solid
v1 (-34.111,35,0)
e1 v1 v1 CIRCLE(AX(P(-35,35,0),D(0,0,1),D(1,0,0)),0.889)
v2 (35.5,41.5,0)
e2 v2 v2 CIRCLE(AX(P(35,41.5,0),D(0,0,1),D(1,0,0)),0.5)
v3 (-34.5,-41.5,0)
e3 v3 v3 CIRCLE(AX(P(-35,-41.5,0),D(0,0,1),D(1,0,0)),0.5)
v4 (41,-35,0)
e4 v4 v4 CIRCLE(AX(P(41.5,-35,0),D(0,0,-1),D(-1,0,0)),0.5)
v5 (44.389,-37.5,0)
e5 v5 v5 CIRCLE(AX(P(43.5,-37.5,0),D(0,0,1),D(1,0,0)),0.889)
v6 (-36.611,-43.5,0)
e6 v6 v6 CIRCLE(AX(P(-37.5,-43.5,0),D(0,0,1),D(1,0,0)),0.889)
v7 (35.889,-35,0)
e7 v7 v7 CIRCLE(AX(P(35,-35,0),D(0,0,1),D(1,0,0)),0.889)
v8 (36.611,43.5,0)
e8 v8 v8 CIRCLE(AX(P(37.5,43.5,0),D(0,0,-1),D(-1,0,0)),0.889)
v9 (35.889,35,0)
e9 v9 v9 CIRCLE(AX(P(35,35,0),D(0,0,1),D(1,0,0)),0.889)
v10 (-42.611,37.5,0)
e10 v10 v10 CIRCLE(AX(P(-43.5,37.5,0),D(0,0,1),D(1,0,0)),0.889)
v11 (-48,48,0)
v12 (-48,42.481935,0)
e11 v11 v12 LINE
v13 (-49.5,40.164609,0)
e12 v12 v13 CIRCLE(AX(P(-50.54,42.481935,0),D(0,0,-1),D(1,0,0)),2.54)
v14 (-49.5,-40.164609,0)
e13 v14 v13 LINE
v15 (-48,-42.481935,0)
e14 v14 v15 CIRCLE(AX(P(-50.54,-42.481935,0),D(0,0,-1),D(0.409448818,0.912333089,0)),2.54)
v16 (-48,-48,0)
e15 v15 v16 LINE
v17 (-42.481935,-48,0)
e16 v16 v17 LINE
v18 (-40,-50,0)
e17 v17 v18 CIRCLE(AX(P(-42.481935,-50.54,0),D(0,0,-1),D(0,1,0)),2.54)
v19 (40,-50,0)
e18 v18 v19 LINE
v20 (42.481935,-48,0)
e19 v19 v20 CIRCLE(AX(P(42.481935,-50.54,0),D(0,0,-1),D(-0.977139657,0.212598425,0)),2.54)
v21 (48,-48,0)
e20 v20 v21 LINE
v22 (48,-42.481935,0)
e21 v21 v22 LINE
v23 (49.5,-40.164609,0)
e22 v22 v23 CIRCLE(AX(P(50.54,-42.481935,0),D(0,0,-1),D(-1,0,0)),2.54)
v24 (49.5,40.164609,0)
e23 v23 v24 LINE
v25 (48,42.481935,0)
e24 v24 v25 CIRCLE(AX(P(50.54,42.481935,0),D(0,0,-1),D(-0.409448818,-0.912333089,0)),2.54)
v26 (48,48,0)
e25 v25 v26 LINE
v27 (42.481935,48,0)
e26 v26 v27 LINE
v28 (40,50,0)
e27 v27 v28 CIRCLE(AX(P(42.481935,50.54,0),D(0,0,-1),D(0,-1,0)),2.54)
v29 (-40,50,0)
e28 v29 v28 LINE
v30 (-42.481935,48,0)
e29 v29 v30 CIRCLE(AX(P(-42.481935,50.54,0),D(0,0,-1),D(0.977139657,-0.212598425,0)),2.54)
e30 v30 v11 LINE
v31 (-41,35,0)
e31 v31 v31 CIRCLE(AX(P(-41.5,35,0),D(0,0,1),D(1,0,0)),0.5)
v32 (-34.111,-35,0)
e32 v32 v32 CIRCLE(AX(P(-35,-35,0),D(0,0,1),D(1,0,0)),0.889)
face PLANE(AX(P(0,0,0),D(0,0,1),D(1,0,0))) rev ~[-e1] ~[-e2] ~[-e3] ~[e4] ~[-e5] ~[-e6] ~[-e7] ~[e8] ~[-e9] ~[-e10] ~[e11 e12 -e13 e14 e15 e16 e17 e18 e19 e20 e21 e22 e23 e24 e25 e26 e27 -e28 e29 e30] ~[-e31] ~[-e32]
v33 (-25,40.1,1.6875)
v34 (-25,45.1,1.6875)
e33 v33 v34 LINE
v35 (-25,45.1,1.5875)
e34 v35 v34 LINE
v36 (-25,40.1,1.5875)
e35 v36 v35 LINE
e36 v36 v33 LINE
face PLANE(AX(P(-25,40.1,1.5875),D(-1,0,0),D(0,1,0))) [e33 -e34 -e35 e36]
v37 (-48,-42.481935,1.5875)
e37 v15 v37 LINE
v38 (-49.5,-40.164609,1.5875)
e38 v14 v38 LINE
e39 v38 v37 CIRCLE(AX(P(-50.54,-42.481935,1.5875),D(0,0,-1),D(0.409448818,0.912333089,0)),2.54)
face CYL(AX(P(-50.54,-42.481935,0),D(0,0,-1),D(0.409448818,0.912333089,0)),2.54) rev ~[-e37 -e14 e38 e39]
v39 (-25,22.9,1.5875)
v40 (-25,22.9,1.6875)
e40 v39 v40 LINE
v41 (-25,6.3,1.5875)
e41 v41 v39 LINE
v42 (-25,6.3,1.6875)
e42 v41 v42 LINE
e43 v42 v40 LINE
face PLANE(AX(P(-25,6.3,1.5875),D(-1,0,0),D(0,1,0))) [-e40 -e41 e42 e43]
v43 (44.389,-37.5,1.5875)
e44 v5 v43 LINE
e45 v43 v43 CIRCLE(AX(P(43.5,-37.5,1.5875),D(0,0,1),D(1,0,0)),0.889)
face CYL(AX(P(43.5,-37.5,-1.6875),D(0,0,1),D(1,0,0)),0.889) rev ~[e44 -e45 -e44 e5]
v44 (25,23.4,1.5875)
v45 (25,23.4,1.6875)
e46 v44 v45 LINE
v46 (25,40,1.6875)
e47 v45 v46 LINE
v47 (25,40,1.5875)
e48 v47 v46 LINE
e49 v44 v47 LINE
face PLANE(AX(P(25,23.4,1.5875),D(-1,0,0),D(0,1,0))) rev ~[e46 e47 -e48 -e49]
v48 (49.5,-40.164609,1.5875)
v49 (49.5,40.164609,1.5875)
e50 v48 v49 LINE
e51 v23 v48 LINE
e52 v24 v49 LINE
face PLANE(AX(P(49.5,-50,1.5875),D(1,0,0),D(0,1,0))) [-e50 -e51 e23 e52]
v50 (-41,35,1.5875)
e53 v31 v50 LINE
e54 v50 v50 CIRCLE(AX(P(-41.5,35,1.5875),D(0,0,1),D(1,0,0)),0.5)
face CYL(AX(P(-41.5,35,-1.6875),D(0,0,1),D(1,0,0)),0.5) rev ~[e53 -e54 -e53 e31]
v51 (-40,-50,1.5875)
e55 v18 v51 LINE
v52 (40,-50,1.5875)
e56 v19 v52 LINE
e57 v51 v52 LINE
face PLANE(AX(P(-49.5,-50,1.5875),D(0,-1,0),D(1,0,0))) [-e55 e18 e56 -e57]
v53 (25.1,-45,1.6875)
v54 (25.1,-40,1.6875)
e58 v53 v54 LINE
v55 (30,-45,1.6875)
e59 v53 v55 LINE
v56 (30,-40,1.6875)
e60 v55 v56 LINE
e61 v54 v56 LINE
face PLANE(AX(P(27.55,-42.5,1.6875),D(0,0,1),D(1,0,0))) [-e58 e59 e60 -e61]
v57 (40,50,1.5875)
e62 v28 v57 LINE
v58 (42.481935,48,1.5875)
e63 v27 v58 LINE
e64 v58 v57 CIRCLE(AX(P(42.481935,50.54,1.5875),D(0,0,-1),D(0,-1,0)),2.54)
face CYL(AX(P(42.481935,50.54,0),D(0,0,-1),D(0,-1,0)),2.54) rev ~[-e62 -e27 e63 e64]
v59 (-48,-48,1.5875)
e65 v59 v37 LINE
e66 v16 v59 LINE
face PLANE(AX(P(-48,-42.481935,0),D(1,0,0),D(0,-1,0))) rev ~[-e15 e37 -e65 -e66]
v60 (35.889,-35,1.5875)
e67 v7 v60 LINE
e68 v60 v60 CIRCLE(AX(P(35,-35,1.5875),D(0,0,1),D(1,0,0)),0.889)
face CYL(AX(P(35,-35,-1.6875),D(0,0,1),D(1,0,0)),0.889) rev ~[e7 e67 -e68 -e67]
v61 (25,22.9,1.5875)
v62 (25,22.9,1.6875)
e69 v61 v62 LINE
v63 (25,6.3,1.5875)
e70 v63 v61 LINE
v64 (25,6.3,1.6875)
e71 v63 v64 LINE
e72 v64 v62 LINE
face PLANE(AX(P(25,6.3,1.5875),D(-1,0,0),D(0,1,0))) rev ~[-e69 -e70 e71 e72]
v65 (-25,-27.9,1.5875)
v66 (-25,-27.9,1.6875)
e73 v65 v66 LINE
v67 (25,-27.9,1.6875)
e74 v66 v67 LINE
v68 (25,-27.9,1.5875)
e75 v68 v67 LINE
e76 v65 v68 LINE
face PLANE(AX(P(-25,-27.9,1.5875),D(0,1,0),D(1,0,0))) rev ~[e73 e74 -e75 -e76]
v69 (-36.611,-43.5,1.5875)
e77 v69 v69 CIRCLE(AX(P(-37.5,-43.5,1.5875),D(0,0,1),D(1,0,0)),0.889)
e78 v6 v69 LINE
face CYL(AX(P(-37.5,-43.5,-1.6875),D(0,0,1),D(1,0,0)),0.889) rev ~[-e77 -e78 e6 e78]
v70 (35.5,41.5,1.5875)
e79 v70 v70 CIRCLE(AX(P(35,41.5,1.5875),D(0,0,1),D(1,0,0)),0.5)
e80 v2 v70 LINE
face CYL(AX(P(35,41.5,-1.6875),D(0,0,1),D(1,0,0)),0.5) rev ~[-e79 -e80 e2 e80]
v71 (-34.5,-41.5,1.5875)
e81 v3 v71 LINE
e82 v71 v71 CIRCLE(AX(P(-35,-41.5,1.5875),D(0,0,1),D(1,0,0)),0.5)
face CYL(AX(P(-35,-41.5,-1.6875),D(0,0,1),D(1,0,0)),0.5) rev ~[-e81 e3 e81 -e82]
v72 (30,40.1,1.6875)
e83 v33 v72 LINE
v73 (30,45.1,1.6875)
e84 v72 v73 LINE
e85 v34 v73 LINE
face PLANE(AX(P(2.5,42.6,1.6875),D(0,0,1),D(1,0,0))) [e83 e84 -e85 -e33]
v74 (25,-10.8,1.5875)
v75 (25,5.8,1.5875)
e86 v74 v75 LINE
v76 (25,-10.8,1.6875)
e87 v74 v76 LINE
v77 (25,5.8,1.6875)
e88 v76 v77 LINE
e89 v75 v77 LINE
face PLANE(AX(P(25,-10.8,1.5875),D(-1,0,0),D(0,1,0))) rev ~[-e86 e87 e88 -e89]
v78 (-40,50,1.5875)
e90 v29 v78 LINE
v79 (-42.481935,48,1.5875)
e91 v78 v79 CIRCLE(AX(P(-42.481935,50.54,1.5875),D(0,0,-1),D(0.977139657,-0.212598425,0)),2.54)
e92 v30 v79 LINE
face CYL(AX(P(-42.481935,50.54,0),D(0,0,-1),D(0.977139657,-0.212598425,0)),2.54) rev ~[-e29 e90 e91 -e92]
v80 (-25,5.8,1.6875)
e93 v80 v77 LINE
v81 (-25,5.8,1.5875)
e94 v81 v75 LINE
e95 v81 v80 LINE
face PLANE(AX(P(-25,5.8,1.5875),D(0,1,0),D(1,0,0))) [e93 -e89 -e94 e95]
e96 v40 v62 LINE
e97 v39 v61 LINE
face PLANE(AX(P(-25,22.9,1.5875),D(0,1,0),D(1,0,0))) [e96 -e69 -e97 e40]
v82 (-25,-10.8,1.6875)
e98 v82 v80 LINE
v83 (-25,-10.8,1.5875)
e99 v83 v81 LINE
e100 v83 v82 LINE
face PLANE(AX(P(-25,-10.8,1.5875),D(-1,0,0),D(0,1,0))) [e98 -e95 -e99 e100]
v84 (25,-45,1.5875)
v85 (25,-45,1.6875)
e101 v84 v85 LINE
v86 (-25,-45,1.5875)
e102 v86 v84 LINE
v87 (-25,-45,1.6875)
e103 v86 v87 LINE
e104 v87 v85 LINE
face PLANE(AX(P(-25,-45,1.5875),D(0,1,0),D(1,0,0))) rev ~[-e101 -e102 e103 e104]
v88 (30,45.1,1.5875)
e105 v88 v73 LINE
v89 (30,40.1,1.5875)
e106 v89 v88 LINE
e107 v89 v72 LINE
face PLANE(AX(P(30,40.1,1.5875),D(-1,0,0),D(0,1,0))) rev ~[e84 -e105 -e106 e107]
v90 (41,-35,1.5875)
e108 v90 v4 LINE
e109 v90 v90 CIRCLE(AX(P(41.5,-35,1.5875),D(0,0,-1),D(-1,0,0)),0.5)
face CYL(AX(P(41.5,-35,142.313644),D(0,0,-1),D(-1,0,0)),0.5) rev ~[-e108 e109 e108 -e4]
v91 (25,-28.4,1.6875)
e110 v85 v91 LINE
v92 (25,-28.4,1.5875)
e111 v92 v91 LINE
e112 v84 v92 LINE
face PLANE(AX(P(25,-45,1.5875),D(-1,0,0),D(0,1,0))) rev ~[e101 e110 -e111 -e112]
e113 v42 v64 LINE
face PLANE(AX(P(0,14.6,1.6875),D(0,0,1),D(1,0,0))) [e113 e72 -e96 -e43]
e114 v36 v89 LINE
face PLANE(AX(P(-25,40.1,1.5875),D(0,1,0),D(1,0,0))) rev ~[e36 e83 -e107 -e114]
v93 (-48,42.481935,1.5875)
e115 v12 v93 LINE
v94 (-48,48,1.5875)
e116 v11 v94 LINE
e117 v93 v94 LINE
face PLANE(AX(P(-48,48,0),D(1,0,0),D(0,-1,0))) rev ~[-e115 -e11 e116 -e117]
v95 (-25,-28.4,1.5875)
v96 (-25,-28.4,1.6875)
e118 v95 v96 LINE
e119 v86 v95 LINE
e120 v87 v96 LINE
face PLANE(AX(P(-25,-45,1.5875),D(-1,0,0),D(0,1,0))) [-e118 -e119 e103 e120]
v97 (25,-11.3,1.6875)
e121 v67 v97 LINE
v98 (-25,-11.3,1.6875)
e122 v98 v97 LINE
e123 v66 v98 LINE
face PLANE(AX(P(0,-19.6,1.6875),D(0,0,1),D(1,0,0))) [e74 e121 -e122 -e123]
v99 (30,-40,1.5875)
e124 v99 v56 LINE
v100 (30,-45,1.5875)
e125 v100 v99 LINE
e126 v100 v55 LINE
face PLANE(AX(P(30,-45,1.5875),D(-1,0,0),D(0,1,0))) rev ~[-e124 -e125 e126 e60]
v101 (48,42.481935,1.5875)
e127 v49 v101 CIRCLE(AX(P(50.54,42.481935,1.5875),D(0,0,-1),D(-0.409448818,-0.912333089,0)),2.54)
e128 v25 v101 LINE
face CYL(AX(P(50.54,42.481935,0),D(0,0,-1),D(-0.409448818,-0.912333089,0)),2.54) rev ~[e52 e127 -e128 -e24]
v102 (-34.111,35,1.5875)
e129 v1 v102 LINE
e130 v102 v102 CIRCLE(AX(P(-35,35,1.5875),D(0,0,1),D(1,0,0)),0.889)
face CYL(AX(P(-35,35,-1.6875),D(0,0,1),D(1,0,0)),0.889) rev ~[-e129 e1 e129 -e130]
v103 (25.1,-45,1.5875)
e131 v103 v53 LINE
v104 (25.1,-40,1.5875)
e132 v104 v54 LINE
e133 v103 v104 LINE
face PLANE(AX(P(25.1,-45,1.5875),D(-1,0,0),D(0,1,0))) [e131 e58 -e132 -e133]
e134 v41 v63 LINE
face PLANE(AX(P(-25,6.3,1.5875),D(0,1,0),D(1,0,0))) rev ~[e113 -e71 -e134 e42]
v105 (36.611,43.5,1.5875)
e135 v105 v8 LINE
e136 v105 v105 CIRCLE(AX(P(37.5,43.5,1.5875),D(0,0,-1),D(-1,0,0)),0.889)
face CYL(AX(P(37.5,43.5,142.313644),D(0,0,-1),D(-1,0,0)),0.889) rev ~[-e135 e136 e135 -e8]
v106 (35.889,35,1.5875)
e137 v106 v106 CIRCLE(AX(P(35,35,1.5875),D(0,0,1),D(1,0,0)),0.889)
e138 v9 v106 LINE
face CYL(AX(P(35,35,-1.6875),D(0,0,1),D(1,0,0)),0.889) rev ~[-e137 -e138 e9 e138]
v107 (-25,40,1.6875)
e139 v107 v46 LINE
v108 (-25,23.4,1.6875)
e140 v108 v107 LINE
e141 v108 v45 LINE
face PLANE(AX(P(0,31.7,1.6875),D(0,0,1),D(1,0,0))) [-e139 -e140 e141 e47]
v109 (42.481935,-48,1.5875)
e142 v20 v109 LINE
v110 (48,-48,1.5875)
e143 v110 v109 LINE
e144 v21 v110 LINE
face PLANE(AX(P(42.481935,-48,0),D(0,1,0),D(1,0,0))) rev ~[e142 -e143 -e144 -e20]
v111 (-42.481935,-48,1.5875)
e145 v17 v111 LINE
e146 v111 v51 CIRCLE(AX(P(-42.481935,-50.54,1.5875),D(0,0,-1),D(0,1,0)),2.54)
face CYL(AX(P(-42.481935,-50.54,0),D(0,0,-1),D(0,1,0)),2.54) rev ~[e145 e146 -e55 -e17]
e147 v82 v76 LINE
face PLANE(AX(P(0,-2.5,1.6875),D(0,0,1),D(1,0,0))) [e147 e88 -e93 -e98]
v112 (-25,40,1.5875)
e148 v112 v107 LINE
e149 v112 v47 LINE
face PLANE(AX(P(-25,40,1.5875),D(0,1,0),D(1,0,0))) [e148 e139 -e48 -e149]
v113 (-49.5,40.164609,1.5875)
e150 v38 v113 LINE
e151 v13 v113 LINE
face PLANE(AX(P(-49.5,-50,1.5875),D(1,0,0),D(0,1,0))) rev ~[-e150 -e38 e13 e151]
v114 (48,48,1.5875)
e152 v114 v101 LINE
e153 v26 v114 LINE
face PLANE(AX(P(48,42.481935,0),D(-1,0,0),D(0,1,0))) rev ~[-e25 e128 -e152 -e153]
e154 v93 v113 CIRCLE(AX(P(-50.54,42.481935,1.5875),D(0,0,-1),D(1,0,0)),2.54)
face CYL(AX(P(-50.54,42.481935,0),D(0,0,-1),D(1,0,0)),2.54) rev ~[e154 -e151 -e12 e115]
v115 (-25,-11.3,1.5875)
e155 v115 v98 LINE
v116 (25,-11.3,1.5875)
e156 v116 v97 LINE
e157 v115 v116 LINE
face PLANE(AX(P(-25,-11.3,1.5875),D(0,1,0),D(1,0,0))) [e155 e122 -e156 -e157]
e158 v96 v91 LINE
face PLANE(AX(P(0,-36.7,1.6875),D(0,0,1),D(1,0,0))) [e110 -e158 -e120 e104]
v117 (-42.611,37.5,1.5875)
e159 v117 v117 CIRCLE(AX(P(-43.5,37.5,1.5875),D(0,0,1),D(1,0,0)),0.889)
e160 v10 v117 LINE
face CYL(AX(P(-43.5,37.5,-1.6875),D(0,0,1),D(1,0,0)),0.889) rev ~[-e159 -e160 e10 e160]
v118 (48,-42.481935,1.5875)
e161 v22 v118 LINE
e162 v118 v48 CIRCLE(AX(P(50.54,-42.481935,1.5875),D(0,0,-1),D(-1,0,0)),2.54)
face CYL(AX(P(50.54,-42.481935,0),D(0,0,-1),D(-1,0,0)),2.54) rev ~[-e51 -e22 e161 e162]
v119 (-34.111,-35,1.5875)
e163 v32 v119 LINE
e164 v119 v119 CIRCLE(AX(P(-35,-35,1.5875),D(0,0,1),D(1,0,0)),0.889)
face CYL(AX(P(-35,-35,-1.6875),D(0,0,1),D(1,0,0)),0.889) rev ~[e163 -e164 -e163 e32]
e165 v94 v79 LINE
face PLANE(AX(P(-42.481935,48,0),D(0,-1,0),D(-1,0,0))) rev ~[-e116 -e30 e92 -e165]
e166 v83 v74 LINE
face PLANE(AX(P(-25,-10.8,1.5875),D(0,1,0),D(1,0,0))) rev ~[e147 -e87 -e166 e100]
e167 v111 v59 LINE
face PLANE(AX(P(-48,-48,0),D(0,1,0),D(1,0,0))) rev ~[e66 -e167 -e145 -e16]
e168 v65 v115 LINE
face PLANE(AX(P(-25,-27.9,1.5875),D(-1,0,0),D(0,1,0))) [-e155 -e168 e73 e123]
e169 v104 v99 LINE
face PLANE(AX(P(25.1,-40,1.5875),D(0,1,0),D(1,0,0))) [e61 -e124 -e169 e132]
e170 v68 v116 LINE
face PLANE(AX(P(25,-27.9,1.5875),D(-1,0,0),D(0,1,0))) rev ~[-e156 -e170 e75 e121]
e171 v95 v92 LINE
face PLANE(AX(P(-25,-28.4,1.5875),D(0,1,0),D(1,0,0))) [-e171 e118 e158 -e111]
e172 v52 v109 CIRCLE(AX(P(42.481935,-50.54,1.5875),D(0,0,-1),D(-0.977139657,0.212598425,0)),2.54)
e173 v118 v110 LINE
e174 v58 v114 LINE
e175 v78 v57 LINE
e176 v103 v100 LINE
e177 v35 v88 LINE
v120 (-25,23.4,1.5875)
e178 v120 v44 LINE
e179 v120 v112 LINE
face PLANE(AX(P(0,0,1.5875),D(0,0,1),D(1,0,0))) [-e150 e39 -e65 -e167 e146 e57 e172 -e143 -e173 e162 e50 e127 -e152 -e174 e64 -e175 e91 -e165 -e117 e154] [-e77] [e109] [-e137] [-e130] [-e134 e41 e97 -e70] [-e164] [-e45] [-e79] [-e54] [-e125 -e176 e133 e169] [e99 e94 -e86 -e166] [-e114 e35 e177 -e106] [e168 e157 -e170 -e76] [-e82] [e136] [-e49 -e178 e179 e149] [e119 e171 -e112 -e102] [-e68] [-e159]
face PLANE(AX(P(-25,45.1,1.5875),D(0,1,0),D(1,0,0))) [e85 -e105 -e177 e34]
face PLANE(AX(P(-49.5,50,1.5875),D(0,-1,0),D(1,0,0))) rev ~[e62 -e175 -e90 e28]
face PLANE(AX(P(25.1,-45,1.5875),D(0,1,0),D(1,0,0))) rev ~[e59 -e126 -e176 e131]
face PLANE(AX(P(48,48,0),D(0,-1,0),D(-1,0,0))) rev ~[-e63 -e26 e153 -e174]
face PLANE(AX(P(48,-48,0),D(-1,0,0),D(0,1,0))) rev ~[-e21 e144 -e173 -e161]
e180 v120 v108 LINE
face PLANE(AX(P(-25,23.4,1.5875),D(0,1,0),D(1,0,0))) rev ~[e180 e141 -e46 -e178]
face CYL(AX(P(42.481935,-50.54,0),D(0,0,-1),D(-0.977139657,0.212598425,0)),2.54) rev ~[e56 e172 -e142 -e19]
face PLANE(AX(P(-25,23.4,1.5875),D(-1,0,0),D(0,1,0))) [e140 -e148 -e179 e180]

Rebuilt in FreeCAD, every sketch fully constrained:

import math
import FreeCAD as App
import Part
import Sketcher

V = App.Vector
Q = App.Units.Quantity


def add_polygon(sketch, points):
    """Adds a closed chain of lines whose ends are joined by coincident constraints."""
    first, n = sketch.GeometryCount, len(points)
    for a, b in zip(points, points[1:] + points[:1]):
        sketch.addGeometry(Part.LineSegment(App.Vector(*a, 0), App.Vector(*b, 0)), False)
    for i in range(n):
        sketch.addConstraint(Sketcher.Constraint("Coincident", first + i, 2, first + (i + 1) % n, 1))

doc = App.newDocument("Part")
body = doc.addObject("PartDesign::Body", "Body")

# Sketch on XY plane
sketch1 = body.newObject("Sketcher::SketchObject", "Sketch")
sketch1.AttachmentSupport = (doc.getObject("XY_Plane"), [""])
sketch1.MapMode = "FlatFace"
sketch1.AttachmentOffset = App.Placement(V(0, 0, 1.5875), App.Rotation())
add_polygon(sketch1, [(-50, 50), (-50, -50), (50, -50), (50, 50)])  # lines 0-3
sketch1.addConstraint([
    Sketcher.Constraint("Vertical", 0),
    Sketcher.Constraint("Horizontal", 1),
    Sketcher.Constraint("Vertical", 2),
    Sketcher.Constraint("Horizontal", 3),
    Sketcher.Constraint("Symmetric", 0, 2, 2, 2, -1, 1),
    Sketcher.Constraint("DistanceX", 1, 1, 1, 2, Q("99 mm")),
    Sketcher.Constraint("DistanceY", 0, 2, 0, 1, Q("100 mm")),
])
pad1 = body.newObject("PartDesign::Pad", "Pad")
pad1.Profile = sketch1
pad1.Length = 1.5875
pad1.Reversed = True

# Sketch on XY plane
sketch2 = body.newObject("Sketcher::SketchObject", "Sketch001")
sketch2.AttachmentSupport = (doc.getObject("XY_Plane"), [""])
sketch2.MapMode = "FlatFace"
sketch2.addGeometry([
    Part.LineSegment(V(-48, -42.5, 0), V(-48, -50, 0)),
    Part.LineSegment(V(-48, -50, 0), V(-49.5, -50, 0)),
    Part.LineSegment(V(-49.5, -50, 0), V(-49.5, -40.2, 0)),
    Part.ArcOfCircle(Part.Circle(V(-50.5, -42.5, 0), V(0, 0, 1), 2.5), math.radians(0), math.radians(66)),
], False)
sketch2.addConstraint([
    Sketcher.Constraint("Coincident", 0, 2, 1, 1),
    Sketcher.Constraint("Coincident", 1, 2, 2, 1),
    Sketcher.Constraint("Coincident", 2, 2, 3, 2),
    Sketcher.Constraint("Tangent", 3, 1, 0, 1),
    Sketcher.Constraint("Vertical", 0),
    Sketcher.Constraint("Horizontal", 1),
    Sketcher.Constraint("Vertical", 2),
    Sketcher.Constraint("Radius", 3, Q("2.54 mm")),
    Sketcher.Constraint("DistanceX", 1, 2, 1, 1, Q("1.5 mm")),
    Sketcher.Constraint("DistanceX", 0, 2, -1, 1, Q("48 mm")),
    Sketcher.Constraint("DistanceY", 0, 2, -1, 1, Q("50 mm")),
    Sketcher.Constraint("DistanceY", 2, 1, 2, 2, Q("9.835391 mm")),
])
pocket1 = body.newObject("PartDesign::Pocket", "Pocket")
pocket1.Profile = sketch2
pocket1.Type = "ThroughAll"
pocket1.Reversed = True

# Sketch on XY plane
sketch3 = body.newObject("Sketcher::SketchObject", "Sketch002")
sketch3.AttachmentSupport = (doc.getObject("XY_Plane"), [""])
sketch3.MapMode = "FlatFace"
sketch3.addGeometry([
    Part.LineSegment(V(-48, -48, 0), V(-42.5, -48, 0)),
    Part.ArcOfCircle(Part.Circle(V(-42.5, -50.5, 0), V(0, 0, 1), 2.5), math.radians(12), math.radians(90)),
    Part.LineSegment(V(-40, -50, 0), V(-48, -50, 0)),
    Part.LineSegment(V(-48, -50, 0), V(-48, -48, 0)),
], False)
sketch3.addConstraint([
    Sketcher.Constraint("Tangent", 0, 2, 1, 2),
    Sketcher.Constraint("Coincident", 1, 1, 2, 1),
    Sketcher.Constraint("Coincident", 2, 2, 3, 1),
    Sketcher.Constraint("Coincident", 3, 2, 0, 1),
    Sketcher.Constraint("Horizontal", 0),
    Sketcher.Constraint("Horizontal", 2),
    Sketcher.Constraint("Vertical", 3),
    Sketcher.Constraint("DistanceX", 2, 2, 2, 1, Q("8 mm")),
    Sketcher.Constraint("DistanceY", 3, 1, 3, 2, Q("2 mm")),
    Sketcher.Constraint("Radius", 1, Q("2.54 mm")),
    Sketcher.Constraint("DistanceY", 0, 2, -1, 1, Q("48 mm")),
    Sketcher.Constraint("DistanceX", 1, 1, -1, 1, Q("40 mm")),
])
pocket2 = body.newObject("PartDesign::Pocket", "Pocket001")
pocket2.Profile = sketch3
pocket2.Type = "ThroughAll"
pocket2.Reversed = True

# Sketch on XY plane
sketch4 = body.newObject("Sketcher::SketchObject", "Sketch003")
sketch4.AttachmentSupport = (doc.getObject("XY_Plane"), [""])
sketch4.MapMode = "FlatFace"
sketch4.addGeometry([
    Part.LineSegment(V(42.5, -48, 0), V(49.5, -48, 0)),
    Part.LineSegment(V(49.5, -48, 0), V(49.5, -50, 0)),
    Part.LineSegment(V(49.5, -50, 0), V(40, -50, 0)),
    Part.ArcOfCircle(Part.Circle(V(42.5, -50.5, 0), V(0, 0, 1), 2.5), math.radians(90), math.radians(168)),
], False)
sketch4.addConstraint([
    Sketcher.Constraint("Coincident", 0, 2, 1, 1),
    Sketcher.Constraint("Coincident", 1, 2, 2, 1),
    Sketcher.Constraint("Coincident", 2, 2, 3, 2),
    Sketcher.Constraint("Tangent", 3, 1, 0, 1),
    Sketcher.Constraint("Horizontal", 0),
    Sketcher.Constraint("Vertical", 1),
    Sketcher.Constraint("Horizontal", 2),
    Sketcher.Constraint("DistanceY", 1, 2, 1, 1, Q("2 mm")),
    Sketcher.Constraint("Radius", 3, Q("2.54 mm")),
    Sketcher.Constraint("DistanceX", 2, 2, 2, 1, Q("9.5 mm")),
    Sketcher.Constraint("DistanceY", 0, 2, -1, 1, Q("48 mm")),
    Sketcher.Constraint("DistanceX", -1, 1, 2, 2, Q("40 mm")),
])
pocket3 = body.newObject("PartDesign::Pocket", "Pocket002")
pocket3.Profile = sketch4
pocket3.Type = "ThroughAll"
pocket3.Reversed = True

# Sketch on XY plane
sketch5 = body.newObject("Sketcher::SketchObject", "Sketch004")
sketch5.AttachmentSupport = (doc.getObject("XY_Plane"), [""])
sketch5.MapMode = "FlatFace"
sketch5.addGeometry([
    Part.LineSegment(V(48, -48, 0), V(48, -42.5, 0)),
    Part.ArcOfCircle(Part.Circle(V(50.5, -42.5, 0), V(0, 0, 1), 2.5), math.radians(114), math.radians(180)),
    Part.LineSegment(V(49.5, -40.2, 0), V(49.5, -48, 0)),
    Part.LineSegment(V(49.5, -48, 0), V(48, -48, 0)),
], False)
sketch5.addConstraint([
    Sketcher.Constraint("Tangent", 0, 2, 1, 2),
    Sketcher.Constraint("Coincident", 1, 1, 2, 1),
    Sketcher.Constraint("Coincident", 2, 2, 3, 1),
    Sketcher.Constraint("Coincident", 3, 2, 0, 1),
    Sketcher.Constraint("Vertical", 0),
    Sketcher.Constraint("Vertical", 2),
    Sketcher.Constraint("Horizontal", 3),
    Sketcher.Constraint("Radius", 1, Q("2.54 mm")),
    Sketcher.Constraint("DistanceX", 3, 2, 3, 1, Q("1.5 mm")),
    Sketcher.Constraint("DistanceX", -1, 1, 0, 2, Q("48 mm")),
    Sketcher.Constraint("DistanceY", 2, 2, -1, 1, Q("48 mm")),
    Sketcher.Constraint("DistanceY", 2, 2, 2, 1, Q("7.835391 mm")),
])
pocket4 = body.newObject("PartDesign::Pocket", "Pocket003")
pocket4.Profile = sketch5
pocket4.Type = "ThroughAll"
pocket4.Reversed = True

# Sketch on XY plane
sketch6 = body.newObject("Sketcher::SketchObject", "Sketch005")
sketch6.AttachmentSupport = (doc.getObject("XY_Plane"), [""])
sketch6.MapMode = "FlatFace"
sketch6.addGeometry([
    Part.LineSegment(V(48, 42.5, 0), V(48, 50, 0)),
    Part.LineSegment(V(48, 50, 0), V(49.5, 50, 0)),
    Part.LineSegment(V(49.5, 50, 0), V(49.5, 40.2, 0)),
    Part.ArcOfCircle(Part.Circle(V(50.5, 42.5, 0), V(0, 0, 1), 2.5), math.radians(180), math.radians(246)),
], False)
sketch6.addConstraint([
    Sketcher.Constraint("Coincident", 0, 2, 1, 1),
    Sketcher.Constraint("Coincident", 1, 2, 2, 1),
    Sketcher.Constraint("Coincident", 2, 2, 3, 2),
    Sketcher.Constraint("Tangent", 3, 1, 0, 1),
    Sketcher.Constraint("Vertical", 0),
    Sketcher.Constraint("Horizontal", 1),
    Sketcher.Constraint("Vertical", 2),
    Sketcher.Constraint("Radius", 3, Q("2.54 mm")),
    Sketcher.Constraint("DistanceX", 1, 1, 1, 2, Q("1.5 mm")),
    Sketcher.Constraint("DistanceX", -1, 1, 0, 2, Q("48 mm")),
    Sketcher.Constraint("DistanceY", -1, 1, 0, 2, Q("50 mm")),
    Sketcher.Constraint("DistanceY", 2, 2, 2, 1, Q("9.835391 mm")),
])
pocket5 = body.newObject("PartDesign::Pocket", "Pocket004")
pocket5.Profile = sketch6
pocket5.Type = "ThroughAll"
pocket5.Reversed = True

# Sketch on XY plane
sketch7 = body.newObject("Sketcher::SketchObject", "Sketch006")
sketch7.AttachmentSupport = (doc.getObject("XY_Plane"), [""])
sketch7.MapMode = "FlatFace"
sketch7.addGeometry([
    Part.LineSegment(V(48, 48, 0), V(42.5, 48, 0)),
    Part.ArcOfCircle(Part.Circle(V(42.5, 50.5, 0), V(0, 0, 1), 2.5), math.radians(-168), math.radians(-90)),
    Part.LineSegment(V(40, 50, 0), V(48, 50, 0)),
    Part.LineSegment(V(48, 50, 0), V(48, 48, 0)),
], False)
sketch7.addConstraint([
    Sketcher.Constraint("Tangent", 0, 2, 1, 2),
    Sketcher.Constraint("Coincident", 1, 1, 2, 1),
    Sketcher.Constraint("Coincident", 2, 2, 3, 1),
    Sketcher.Constraint("Coincident", 3, 2, 0, 1),
    Sketcher.Constraint("Horizontal", 0),
    Sketcher.Constraint("Horizontal", 2),
    Sketcher.Constraint("Vertical", 3),
    Sketcher.Constraint("DistanceX", 2, 1, 2, 2, Q("8 mm")),
    Sketcher.Constraint("DistanceY", 3, 2, 3, 1, Q("2 mm")),
    Sketcher.Constraint("Radius", 1, Q("2.54 mm")),
    Sketcher.Constraint("DistanceY", -1, 1, 0, 2, Q("48 mm")),
    Sketcher.Constraint("DistanceX", -1, 1, 1, 1, Q("40 mm")),
])
pocket6 = body.newObject("PartDesign::Pocket", "Pocket005")
pocket6.Profile = sketch7
pocket6.Type = "ThroughAll"
pocket6.Reversed = True

# Sketch on XY plane
sketch8 = body.newObject("Sketcher::SketchObject", "Sketch007")
sketch8.AttachmentSupport = (doc.getObject("XY_Plane"), [""])
sketch8.MapMode = "FlatFace"
sketch8.addGeometry([
    Part.LineSegment(V(-42.5, 48, 0), V(-49.5, 48, 0)),
    Part.LineSegment(V(-49.5, 48, 0), V(-49.5, 50, 0)),
    Part.LineSegment(V(-49.5, 50, 0), V(-40, 50, 0)),
    Part.ArcOfCircle(Part.Circle(V(-42.5, 50.5, 0), V(0, 0, 1), 2.5), math.radians(-90), math.radians(-12)),
], False)
sketch8.addConstraint([
    Sketcher.Constraint("Coincident", 0, 2, 1, 1),
    Sketcher.Constraint("Coincident", 1, 2, 2, 1),
    Sketcher.Constraint("Coincident", 2, 2, 3, 2),
    Sketcher.Constraint("Tangent", 3, 1, 0, 1),
    Sketcher.Constraint("Horizontal", 0),
    Sketcher.Constraint("Vertical", 1),
    Sketcher.Constraint("Horizontal", 2),
    Sketcher.Constraint("DistanceY", 1, 1, 1, 2, Q("2 mm")),
    Sketcher.Constraint("Radius", 3, Q("2.54 mm")),
    Sketcher.Constraint("DistanceX", 2, 1, 2, 2, Q("9.5 mm")),
    Sketcher.Constraint("DistanceY", -1, 1, 0, 2, Q("48 mm")),
    Sketcher.Constraint("DistanceX", 2, 2, -1, 1, Q("40 mm")),
])
pocket7 = body.newObject("PartDesign::Pocket", "Pocket006")
pocket7.Profile = sketch8
pocket7.Type = "ThroughAll"
pocket7.Reversed = True

# Sketch on XY plane
sketch9 = body.newObject("Sketcher::SketchObject", "Sketch008")
sketch9.AttachmentSupport = (doc.getObject("XY_Plane"), [""])
sketch9.MapMode = "FlatFace"
sketch9.addGeometry([
    Part.LineSegment(V(-48, 48, 0), V(-48, 42.5, 0)),
    Part.ArcOfCircle(Part.Circle(V(-50.5, 42.5, 0), V(0, 0, 1), 2.5), math.radians(-66), math.radians(0)),
    Part.LineSegment(V(-49.5, 40.2, 0), V(-49.5, 48, 0)),
    Part.LineSegment(V(-49.5, 48, 0), V(-48, 48, 0)),
], False)
sketch9.addConstraint([
    Sketcher.Constraint("Tangent", 0, 2, 1, 2),
    Sketcher.Constraint("Coincident", 1, 1, 2, 1),
    Sketcher.Constraint("Coincident", 2, 2, 3, 1),
    Sketcher.Constraint("Coincident", 3, 2, 0, 1),
    Sketcher.Constraint("Vertical", 0),
    Sketcher.Constraint("Vertical", 2),
    Sketcher.Constraint("Horizontal", 3),
    Sketcher.Constraint("Radius", 1, Q("2.54 mm")),
    Sketcher.Constraint("DistanceX", 3, 1, 3, 2, Q("1.5 mm")),
    Sketcher.Constraint("DistanceX", 0, 2, -1, 1, Q("48 mm")),
    Sketcher.Constraint("DistanceY", -1, 1, 2, 2, Q("48 mm")),
    Sketcher.Constraint("DistanceY", 2, 1, 2, 2, Q("7.835391 mm")),
])
pocket8 = body.newObject("PartDesign::Pocket", "Pocket007")
pocket8.Profile = sketch9
pocket8.Type = "ThroughAll"
pocket8.Reversed = True

# Sketch on XY plane
sketch10 = body.newObject("Sketcher::SketchObject", "Sketch009")
sketch10.AttachmentSupport = (doc.getObject("XY_Plane"), [""])
sketch10.MapMode = "FlatFace"
sketch10.AttachmentOffset = App.Placement(V(0, 0, 1.5875), App.Rotation())
add_polygon(sketch10, [(-25, 40), (-25, 23), (25, 23), (25, 40)])  # lines 0-3
sketch10.addConstraint([
    Sketcher.Constraint("Vertical", 0),
    Sketcher.Constraint("Horizontal", 1),
    Sketcher.Constraint("Vertical", 2),
    Sketcher.Constraint("Horizontal", 3),
    Sketcher.Constraint("DistanceX", 1, 1, 1, 2, Q("50 mm")),
    Sketcher.Constraint("DistanceY", 0, 2, 0, 1, Q("16.6 mm")),
    Sketcher.Constraint("DistanceX", 0, 2, -1, 1, Q("25 mm")),
    Sketcher.Constraint("DistanceY", -1, 1, 2, 2, Q("40 mm")),
])
pad2 = body.newObject("PartDesign::Pad", "Pad001")
pad2.Profile = sketch10
pad2.Length = 0.1

# Sketch on XY plane
sketch11 = body.newObject("Sketcher::SketchObject", "Sketch010")
sketch11.AttachmentSupport = (doc.getObject("XY_Plane"), [""])
sketch11.MapMode = "FlatFace"
sketch11.AttachmentOffset = App.Placement(V(0, 0, 1.5875), App.Rotation())
add_polygon(sketch11, [(-25, 23), (-25, 6), (25, 6), (25, 23)])  # lines 0-3
sketch11.addConstraint([
    Sketcher.Constraint("Vertical", 0),
    Sketcher.Constraint("Horizontal", 1),
    Sketcher.Constraint("Vertical", 2),
    Sketcher.Constraint("Horizontal", 3),
    Sketcher.Constraint("DistanceX", 1, 1, 1, 2, Q("50 mm")),
    Sketcher.Constraint("DistanceY", 0, 2, 0, 1, Q("16.6 mm")),
    Sketcher.Constraint("DistanceX", 0, 2, -1, 1, Q("25 mm")),
    Sketcher.Constraint("DistanceY", -1, 1, 0, 2, Q("6.3 mm")),
])
pad3 = body.newObject("PartDesign::Pad", "Pad002")
pad3.Profile = sketch11
pad3.Length = 0.1

# Sketch on XY plane
sketch12 = body.newObject("Sketcher::SketchObject", "Sketch011")
sketch12.AttachmentSupport = (doc.getObject("XY_Plane"), [""])
sketch12.MapMode = "FlatFace"
sketch12.AttachmentOffset = App.Placement(V(0, 0, 1.5875), App.Rotation())
add_polygon(sketch12, [(-25, 6), (-25, -11), (25, -11), (25, 6)])  # lines 0-3
sketch12.addConstraint([
    Sketcher.Constraint("Vertical", 0),
    Sketcher.Constraint("Horizontal", 1),
    Sketcher.Constraint("Vertical", 2),
    Sketcher.Constraint("Horizontal", 3),
    Sketcher.Constraint("DistanceX", 1, 1, 1, 2, Q("50 mm")),
    Sketcher.Constraint("DistanceY", 0, 2, 0, 1, Q("16.6 mm")),
    Sketcher.Constraint("DistanceX", 0, 2, -1, 1, Q("25 mm")),
    Sketcher.Constraint("DistanceY", 0, 2, -1, 1, Q("10.8 mm")),
])
pad4 = body.newObject("PartDesign::Pad", "Pad003")
pad4.Profile = sketch12
pad4.Length = 0.1

# Sketch on XY plane
sketch13 = body.newObject("Sketcher::SketchObject", "Sketch012")
sketch13.AttachmentSupport = (doc.getObject("XY_Plane"), [""])
sketch13.MapMode = "FlatFace"
sketch13.AttachmentOffset = App.Placement(V(0, 0, 1.5875), App.Rotation())
add_polygon(sketch13, [(-25, -11), (-25, -28), (25, -28), (25, -11)])  # lines 0-3
sketch13.addConstraint([
    Sketcher.Constraint("Vertical", 0),
    Sketcher.Constraint("Horizontal", 1),
    Sketcher.Constraint("Vertical", 2),
    Sketcher.Constraint("Horizontal", 3),
    Sketcher.Constraint("DistanceX", 1, 1, 1, 2, Q("50 mm")),
    Sketcher.Constraint("DistanceY", 0, 2, 0, 1, Q("16.6 mm")),
    Sketcher.Constraint("DistanceX", 0, 2, -1, 1, Q("25 mm")),
    Sketcher.Constraint("DistanceY", 0, 2, -1, 1, Q("27.9 mm")),
])
pad5 = body.newObject("PartDesign::Pad", "Pad004")
pad5.Profile = sketch13
pad5.Length = 0.1

# Sketch on XY plane
sketch14 = body.newObject("Sketcher::SketchObject", "Sketch013")
sketch14.AttachmentSupport = (doc.getObject("XY_Plane"), [""])
sketch14.MapMode = "FlatFace"
sketch14.AttachmentOffset = App.Placement(V(0, 0, 1.5875), App.Rotation())
add_polygon(sketch14, [(-25, -28), (-25, -45), (25, -45), (25, -28)])  # lines 0-3
sketch14.addConstraint([
    Sketcher.Constraint("Vertical", 0),
    Sketcher.Constraint("Horizontal", 1),
    Sketcher.Constraint("Vertical", 2),
    Sketcher.Constraint("Horizontal", 3),
    Sketcher.Constraint("DistanceX", 1, 1, 1, 2, Q("50 mm")),
    Sketcher.Constraint("DistanceY", 0, 2, 0, 1, Q("16.6 mm")),
    Sketcher.Constraint("DistanceX", 0, 2, -1, 1, Q("25 mm")),
    Sketcher.Constraint("DistanceY", 0, 2, -1, 1, Q("45 mm")),
])
pad6 = body.newObject("PartDesign::Pad", "Pad005")
pad6.Profile = sketch14
pad6.Length = 0.1

# Sketch on XY plane
sketch15 = body.newObject("Sketcher::SketchObject", "Sketch014")
sketch15.AttachmentSupport = (doc.getObject("XY_Plane"), [""])
sketch15.MapMode = "FlatFace"
sketch15.AttachmentOffset = App.Placement(V(0, 0, 1.5875), App.Rotation())
add_polygon(sketch15, [(-25, 45), (-25, 40), (30, 40), (30, 45)])  # lines 0-3
sketch15.addConstraint([
    Sketcher.Constraint("Vertical", 0),
    Sketcher.Constraint("Horizontal", 1),
    Sketcher.Constraint("Vertical", 2),
    Sketcher.Constraint("Horizontal", 3),
    Sketcher.Constraint("DistanceX", 1, 1, 1, 2, Q("55 mm")),
    Sketcher.Constraint("DistanceY", 0, 2, 0, 1, Q("5 mm")),
    Sketcher.Constraint("DistanceX", 0, 2, -1, 1, Q("25 mm")),
    Sketcher.Constraint("DistanceY", -1, 1, 0, 2, Q("40.1 mm")),
])
pad7 = body.newObject("PartDesign::Pad", "Pad006")
pad7.Profile = sketch15
pad7.Length = 0.1

# Sketch on XY plane
sketch16 = body.newObject("Sketcher::SketchObject", "Sketch015")
sketch16.AttachmentSupport = (doc.getObject("XY_Plane"), [""])
sketch16.MapMode = "FlatFace"
sketch16.AttachmentOffset = App.Placement(V(0, 0, 1.5875), App.Rotation())
add_polygon(sketch16, [(25.1, -40), (25.1, -45), (30, -45), (30, -40)])  # lines 0-3
sketch16.addConstraint([
    Sketcher.Constraint("Vertical", 0),
    Sketcher.Constraint("Horizontal", 1),
    Sketcher.Constraint("Vertical", 2),
    Sketcher.Constraint("Horizontal", 3),
    Sketcher.Constraint("DistanceY", 0, 2, 0, 1, Q("5 mm")),
    Sketcher.Constraint("DistanceX", 1, 1, 1, 2, Q("4.9 mm")),
    Sketcher.Constraint("DistanceY", 0, 2, -1, 1, Q("45 mm")),
    Sketcher.Constraint("DistanceX", -1, 1, 1, 2, Q("30 mm")),
])
pad8 = body.newObject("PartDesign::Pad", "Pad007")
pad8.Profile = sketch16
pad8.Length = 0.1

# Sketch on XY plane
sketch17 = body.newObject("Sketcher::SketchObject", "Sketch016")
sketch17.AttachmentSupport = (doc.getObject("XY_Plane"), [""])
sketch17.MapMode = "FlatFace"
sketch17.AttachmentOffset = App.Placement(V(0, 0, 1.5875), App.Rotation())
sketch17.addGeometry(Part.Circle(V(41.5, -35, 0), V(0, 0, 1), 0.5), False)
sketch17.addConstraint([
    Sketcher.Constraint("Diameter", 0, Q("1 mm")),
    Sketcher.Constraint("DistanceY", 0, 3, -1, 1, Q("35 mm")),
    Sketcher.Constraint("DistanceX", -1, 1, 0, 3, Q("41.5 mm")),
])
doc.recompute()
hole = body.newObject("PartDesign::Hole", "Hole")
hole.Profile = sketch17
hole.ThreadType = "None"
hole.Diameter = 1
hole.DepthType = "ThroughAll"

# Sketch on XY plane
sketch18 = body.newObject("Sketcher::SketchObject", "Sketch017")
sketch18.AttachmentSupport = (doc.getObject("XY_Plane"), [""])
sketch18.MapMode = "FlatFace"
sketch18.addGeometry([
    Part.Circle(V(35, 41.5, 0), V(0, 0, 1), 0.5),
    Part.Circle(V(-35, -41.5, 0), V(0, 0, 1), 0.5),
    Part.Circle(V(-41.5, 35, 0), V(0, 0, 1), 0.5),
], False)
sketch18.addConstraint([
    Sketcher.Constraint("Equal", 0, 1),
    Sketcher.Constraint("Equal", 1, 2),
    Sketcher.Constraint("Symmetric", 0, 3, 1, 3, -1, 1),
    Sketcher.Constraint("Diameter", 0, Q("1 mm")),
    Sketcher.Constraint("DistanceX", -1, 1, 0, 3, Q("35 mm")),
    Sketcher.Constraint("DistanceY", -1, 1, 2, 3, Q("35 mm")),
    Sketcher.Constraint("DistanceY", 1, 3, 0, 3, Q("83 mm")),
    Sketcher.Constraint("DistanceX", 2, 3, -1, 1, Q("41.5 mm")),
])
doc.recompute()
hole2 = body.newObject("PartDesign::Hole", "Hole001")
hole2.Profile = sketch18
hole2.ThreadType = "None"
hole2.Diameter = 1
hole2.DepthType = "Dimension"
hole2.Depth = 1.6875
hole2.DrillPoint = "Flat"
hole2.Reversed = True

# Sketch on XY plane
sketch19 = body.newObject("Sketcher::SketchObject", "Sketch018")
sketch19.AttachmentSupport = (doc.getObject("XY_Plane"), [""])
sketch19.MapMode = "FlatFace"
sketch19.addGeometry([
    Part.Circle(V(35, 35, 0), V(0, 0, 1), 0.9),  # 0
    Part.Circle(V(43.5, -37.5, 0), V(0, 0, 1), 0.9),  # 1
    Part.Circle(V(35, -35, 0), V(0, 0, 1), 0.9),  # 2
    Part.Circle(V(-37.5, -43.5, 0), V(0, 0, 1), 0.9),  # 3
    Part.Circle(V(-35, -35, 0), V(0, 0, 1), 0.9),  # 4
    Part.Circle(V(-43.5, 37.5, 0), V(0, 0, 1), 0.9),  # 5
    Part.Circle(V(-35, 35, 0), V(0, 0, 1), 0.9),  # 6
], False)
sketch19.addConstraint([
    Sketcher.Constraint("Equal", 0, 1),
    Sketcher.Constraint("Equal", 1, 2),
    Sketcher.Constraint("Equal", 2, 3),
    Sketcher.Constraint("Equal", 3, 4),
    Sketcher.Constraint("Equal", 4, 5),
    Sketcher.Constraint("Equal", 5, 6),
    Sketcher.Constraint("Symmetric", 0, 3, 4, 3, -1, 1),
    Sketcher.Constraint("Symmetric", 1, 3, 5, 3, -1, 1),
    Sketcher.Constraint("Symmetric", 2, 3, 6, 3, -1, 1),
    Sketcher.Constraint("Symmetric", 2, 3, 4, 3, -2),
    Sketcher.Constraint("Diameter", 0, Q("1.778 mm")),
    Sketcher.Constraint("DistanceX", -1, 1, 0, 3, Q("35 mm")),
    Sketcher.Constraint("DistanceY", -1, 1, 0, 3, Q("35 mm")),
    Sketcher.Constraint("DistanceX", 3, 3, 1, 3, Q("81 mm")),
    Sketcher.Constraint("DistanceY", 3, 3, 1, 3, Q("6 mm")),
    Sketcher.Constraint("DistanceX", 5, 3, 3, 3, Q("6 mm")),
    Sketcher.Constraint("DistanceY", 3, 3, 5, 3, Q("81 mm")),
])
doc.recompute()
hole3 = body.newObject("PartDesign::Hole", "Hole002")
hole3.Profile = sketch19
hole3.ThreadType = "None"
hole3.Diameter = 1.778
hole3.DepthType = "Dimension"
hole3.Depth = 1.6875
hole3.DrillPoint = "Flat"
hole3.Reversed = True

# Sketch on XY plane
sketch20 = body.newObject("Sketcher::SketchObject", "Sketch019")
sketch20.AttachmentSupport = (doc.getObject("XY_Plane"), [""])
sketch20.MapMode = "FlatFace"
sketch20.AttachmentOffset = App.Placement(V(0, 0, 1.5875), App.Rotation())
sketch20.addGeometry(Part.Circle(V(37.5, 43.5, 0), V(0, 0, 1), 0.9), False)
sketch20.addConstraint([
    Sketcher.Constraint("Diameter", 0, Q("1.778 mm")),
    Sketcher.Constraint("DistanceX", -1, 1, 0, 3, Q("37.5 mm")),
    Sketcher.Constraint("DistanceY", -1, 1, 0, 3, Q("43.5 mm")),
])
doc.recompute()
hole4 = body.newObject("PartDesign::Hole", "Hole003")
hole4.Profile = sketch20
hole4.ThreadType = "None"
hole4.Diameter = 1.778
hole4.DepthType = "ThroughAll"

doc.recompute()
